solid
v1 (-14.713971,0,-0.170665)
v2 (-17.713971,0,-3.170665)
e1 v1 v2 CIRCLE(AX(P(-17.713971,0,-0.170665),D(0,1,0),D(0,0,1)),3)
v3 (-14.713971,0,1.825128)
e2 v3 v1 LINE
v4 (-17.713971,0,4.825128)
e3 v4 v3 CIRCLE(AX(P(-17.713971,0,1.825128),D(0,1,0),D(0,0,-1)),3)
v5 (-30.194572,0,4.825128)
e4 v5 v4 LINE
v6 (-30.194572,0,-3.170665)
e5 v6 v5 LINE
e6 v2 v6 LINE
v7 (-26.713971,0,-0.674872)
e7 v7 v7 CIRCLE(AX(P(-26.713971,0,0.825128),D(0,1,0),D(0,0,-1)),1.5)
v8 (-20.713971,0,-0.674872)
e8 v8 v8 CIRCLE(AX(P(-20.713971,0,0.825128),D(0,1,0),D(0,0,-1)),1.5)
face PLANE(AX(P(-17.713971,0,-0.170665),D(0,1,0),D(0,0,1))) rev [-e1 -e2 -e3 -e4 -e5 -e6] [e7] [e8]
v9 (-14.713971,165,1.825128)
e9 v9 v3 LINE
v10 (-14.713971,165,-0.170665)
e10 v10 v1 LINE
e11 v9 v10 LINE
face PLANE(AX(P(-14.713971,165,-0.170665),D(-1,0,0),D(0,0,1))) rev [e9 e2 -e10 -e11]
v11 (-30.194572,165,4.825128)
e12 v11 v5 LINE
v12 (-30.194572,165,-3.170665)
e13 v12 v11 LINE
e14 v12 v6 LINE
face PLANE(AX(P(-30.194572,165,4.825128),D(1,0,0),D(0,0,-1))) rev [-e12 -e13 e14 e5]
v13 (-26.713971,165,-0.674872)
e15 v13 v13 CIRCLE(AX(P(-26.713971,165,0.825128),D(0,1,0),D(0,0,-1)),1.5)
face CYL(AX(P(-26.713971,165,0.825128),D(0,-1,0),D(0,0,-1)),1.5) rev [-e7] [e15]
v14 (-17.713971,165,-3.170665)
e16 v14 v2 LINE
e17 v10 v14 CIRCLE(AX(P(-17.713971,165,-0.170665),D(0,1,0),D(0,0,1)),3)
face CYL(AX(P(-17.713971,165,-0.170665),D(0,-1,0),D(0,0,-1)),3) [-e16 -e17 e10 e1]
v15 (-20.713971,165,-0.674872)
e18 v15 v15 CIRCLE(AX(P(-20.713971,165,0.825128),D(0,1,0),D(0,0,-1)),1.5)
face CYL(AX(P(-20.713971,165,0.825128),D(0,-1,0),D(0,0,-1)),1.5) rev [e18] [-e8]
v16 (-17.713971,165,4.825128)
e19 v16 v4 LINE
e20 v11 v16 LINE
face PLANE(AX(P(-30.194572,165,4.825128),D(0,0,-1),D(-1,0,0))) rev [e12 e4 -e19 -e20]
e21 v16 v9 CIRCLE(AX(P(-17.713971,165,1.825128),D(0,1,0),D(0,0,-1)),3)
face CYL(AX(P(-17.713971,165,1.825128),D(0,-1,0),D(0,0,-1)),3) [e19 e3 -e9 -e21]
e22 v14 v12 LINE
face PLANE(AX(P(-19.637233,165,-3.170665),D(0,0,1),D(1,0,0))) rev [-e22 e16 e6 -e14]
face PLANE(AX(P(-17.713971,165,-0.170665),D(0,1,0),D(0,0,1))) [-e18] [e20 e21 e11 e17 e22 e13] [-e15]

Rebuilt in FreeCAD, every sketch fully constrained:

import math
import FreeCAD as App
import Part
import Sketcher
Q = App.Units.Quantity

doc = App.newDocument("Part")
params = doc.addObject("Spreadsheet::Sheet", "Params")
for row, (alias, value) in enumerate([
    ("sketch1_diameter", "3 mm"),
    ("sketch1_radius", "3 mm"),
    ("pad1_length", "165 mm"),
], start=1):
    params.set(f"A{row}", alias)
    params.set(f"B{row}", "=" + value)
    params.setAlias(f"B{row}", alias)

body = doc.addObject("PartDesign::Body", "Body")

# Sketch on XZ plane
sketch1 = body.newObject("Sketcher::SketchObject", "Sketch")
sketch1.AttachmentSupport = (doc.getObject("XZ_Plane"), [""])
sketch1.MapMode = "FlatFace"
sketch1.addGeometry(Part.LineSegment(App.Vector(-30.194572, -3.170665, 0), App.Vector(-30.194572, 4.825128, 0)), False)
sketch1.addGeometry(Part.LineSegment(App.Vector(-30.194572, 4.825128, 0), App.Vector(-17.713971, 4.825128, 0)), False)
sketch1.addGeometry(Part.ArcOfCircle(Part.Circle(App.Vector(-17.713971, 1.825128, 0), App.Vector(0, 0, 1), 3), math.radians(0), math.radians(90)), False)
sketch1.addGeometry(Part.LineSegment(App.Vector(-14.713971, 1.825128, 0), App.Vector(-14.713971, -0.170665, 0)), False)
sketch1.addGeometry(Part.ArcOfCircle(Part.Circle(App.Vector(-17.713971, -0.170665, 0), App.Vector(0, 0, 1), 3), math.radians(-90), math.radians(0)), False)
sketch1.addGeometry(Part.LineSegment(App.Vector(-17.713971, -3.170665, 0), App.Vector(-30.194572, -3.170665, 0)), False)
sketch1.addGeometry(Part.Circle(App.Vector(-20.713971, 0.825128, 0), App.Vector(0, 0, 1), 1.5), False)
sketch1.addGeometry(Part.Circle(App.Vector(-26.713971, 0.825128, 0), App.Vector(0, 0, 1), 1.5), False)
sketch1.addConstraint(Sketcher.Constraint("Coincident", 0, 2, 1, 1))
sketch1.addConstraint(Sketcher.Constraint("Tangent", 1, 2, 2, 2))
sketch1.addConstraint(Sketcher.Constraint("Tangent", 2, 1, 3, 1))
sketch1.addConstraint(Sketcher.Constraint("Tangent", 3, 2, 4, 2))
sketch1.addConstraint(Sketcher.Constraint("Tangent", 4, 1, 5, 1))
sketch1.addConstraint(Sketcher.Constraint("Coincident", 5, 2, 0, 1))
sketch1.addConstraint(Sketcher.Constraint("Vertical", 0))
sketch1.addConstraint(Sketcher.Constraint("Horizontal", 1))
sketch1.addConstraint(Sketcher.Constraint("Vertical", 3))
sketch1.addConstraint(Sketcher.Constraint("Horizontal", 5))
sketch1.addConstraint(Sketcher.Constraint("Equal", 2, 4))
sketch1.addConstraint(Sketcher.Constraint("Equal", 6, 7))
sketch1.addConstraint(Sketcher.Constraint("Horizontal", 6, 3, 7, 3))
sketch1.addConstraint(Sketcher.Constraint("Diameter", 6, Q("3 mm")))
sketch1.addConstraint(Sketcher.Constraint("Radius", 2, Q("3 mm")))
sketch1.addConstraint(Sketcher.Constraint("DistanceX", 6, 3, 4, 3, Q("3 mm")))
sketch1.addConstraint(Sketcher.Constraint("DistanceY", 6, 3, 2, 3, Q("1 mm")))
sketch1.addConstraint(Sketcher.Constraint("DistanceX", 7, 3, 6, 3, Q("6 mm")))
sketch1.addConstraint(Sketcher.Constraint("DistanceX", 1, 1, 1, 2, Q("12.480601 mm")))
sketch1.addConstraint(Sketcher.Constraint("DistanceY", 0, 1, 0, 2, Q("7.995792 mm")))
sketch1.addConstraint(Sketcher.Constraint("DistanceX", 2, 3, -1, 1, Q("17.713971 mm")))
sketch1.addConstraint(Sketcher.Constraint("DistanceY", -1, 1, 2, 3, Q("1.825128 mm")))
sketch1.setExpression("Constraints[13]", "Params.sketch1_diameter")
sketch1.setExpression("Constraints[14]", "Params.sketch1_radius")
pad1 = body.newObject("PartDesign::Pad", "Pad")
pad1.Profile = sketch1
pad1.setExpression("Length", "Params.pad1_length")
pad1.Reversed = True

doc.recompute()
